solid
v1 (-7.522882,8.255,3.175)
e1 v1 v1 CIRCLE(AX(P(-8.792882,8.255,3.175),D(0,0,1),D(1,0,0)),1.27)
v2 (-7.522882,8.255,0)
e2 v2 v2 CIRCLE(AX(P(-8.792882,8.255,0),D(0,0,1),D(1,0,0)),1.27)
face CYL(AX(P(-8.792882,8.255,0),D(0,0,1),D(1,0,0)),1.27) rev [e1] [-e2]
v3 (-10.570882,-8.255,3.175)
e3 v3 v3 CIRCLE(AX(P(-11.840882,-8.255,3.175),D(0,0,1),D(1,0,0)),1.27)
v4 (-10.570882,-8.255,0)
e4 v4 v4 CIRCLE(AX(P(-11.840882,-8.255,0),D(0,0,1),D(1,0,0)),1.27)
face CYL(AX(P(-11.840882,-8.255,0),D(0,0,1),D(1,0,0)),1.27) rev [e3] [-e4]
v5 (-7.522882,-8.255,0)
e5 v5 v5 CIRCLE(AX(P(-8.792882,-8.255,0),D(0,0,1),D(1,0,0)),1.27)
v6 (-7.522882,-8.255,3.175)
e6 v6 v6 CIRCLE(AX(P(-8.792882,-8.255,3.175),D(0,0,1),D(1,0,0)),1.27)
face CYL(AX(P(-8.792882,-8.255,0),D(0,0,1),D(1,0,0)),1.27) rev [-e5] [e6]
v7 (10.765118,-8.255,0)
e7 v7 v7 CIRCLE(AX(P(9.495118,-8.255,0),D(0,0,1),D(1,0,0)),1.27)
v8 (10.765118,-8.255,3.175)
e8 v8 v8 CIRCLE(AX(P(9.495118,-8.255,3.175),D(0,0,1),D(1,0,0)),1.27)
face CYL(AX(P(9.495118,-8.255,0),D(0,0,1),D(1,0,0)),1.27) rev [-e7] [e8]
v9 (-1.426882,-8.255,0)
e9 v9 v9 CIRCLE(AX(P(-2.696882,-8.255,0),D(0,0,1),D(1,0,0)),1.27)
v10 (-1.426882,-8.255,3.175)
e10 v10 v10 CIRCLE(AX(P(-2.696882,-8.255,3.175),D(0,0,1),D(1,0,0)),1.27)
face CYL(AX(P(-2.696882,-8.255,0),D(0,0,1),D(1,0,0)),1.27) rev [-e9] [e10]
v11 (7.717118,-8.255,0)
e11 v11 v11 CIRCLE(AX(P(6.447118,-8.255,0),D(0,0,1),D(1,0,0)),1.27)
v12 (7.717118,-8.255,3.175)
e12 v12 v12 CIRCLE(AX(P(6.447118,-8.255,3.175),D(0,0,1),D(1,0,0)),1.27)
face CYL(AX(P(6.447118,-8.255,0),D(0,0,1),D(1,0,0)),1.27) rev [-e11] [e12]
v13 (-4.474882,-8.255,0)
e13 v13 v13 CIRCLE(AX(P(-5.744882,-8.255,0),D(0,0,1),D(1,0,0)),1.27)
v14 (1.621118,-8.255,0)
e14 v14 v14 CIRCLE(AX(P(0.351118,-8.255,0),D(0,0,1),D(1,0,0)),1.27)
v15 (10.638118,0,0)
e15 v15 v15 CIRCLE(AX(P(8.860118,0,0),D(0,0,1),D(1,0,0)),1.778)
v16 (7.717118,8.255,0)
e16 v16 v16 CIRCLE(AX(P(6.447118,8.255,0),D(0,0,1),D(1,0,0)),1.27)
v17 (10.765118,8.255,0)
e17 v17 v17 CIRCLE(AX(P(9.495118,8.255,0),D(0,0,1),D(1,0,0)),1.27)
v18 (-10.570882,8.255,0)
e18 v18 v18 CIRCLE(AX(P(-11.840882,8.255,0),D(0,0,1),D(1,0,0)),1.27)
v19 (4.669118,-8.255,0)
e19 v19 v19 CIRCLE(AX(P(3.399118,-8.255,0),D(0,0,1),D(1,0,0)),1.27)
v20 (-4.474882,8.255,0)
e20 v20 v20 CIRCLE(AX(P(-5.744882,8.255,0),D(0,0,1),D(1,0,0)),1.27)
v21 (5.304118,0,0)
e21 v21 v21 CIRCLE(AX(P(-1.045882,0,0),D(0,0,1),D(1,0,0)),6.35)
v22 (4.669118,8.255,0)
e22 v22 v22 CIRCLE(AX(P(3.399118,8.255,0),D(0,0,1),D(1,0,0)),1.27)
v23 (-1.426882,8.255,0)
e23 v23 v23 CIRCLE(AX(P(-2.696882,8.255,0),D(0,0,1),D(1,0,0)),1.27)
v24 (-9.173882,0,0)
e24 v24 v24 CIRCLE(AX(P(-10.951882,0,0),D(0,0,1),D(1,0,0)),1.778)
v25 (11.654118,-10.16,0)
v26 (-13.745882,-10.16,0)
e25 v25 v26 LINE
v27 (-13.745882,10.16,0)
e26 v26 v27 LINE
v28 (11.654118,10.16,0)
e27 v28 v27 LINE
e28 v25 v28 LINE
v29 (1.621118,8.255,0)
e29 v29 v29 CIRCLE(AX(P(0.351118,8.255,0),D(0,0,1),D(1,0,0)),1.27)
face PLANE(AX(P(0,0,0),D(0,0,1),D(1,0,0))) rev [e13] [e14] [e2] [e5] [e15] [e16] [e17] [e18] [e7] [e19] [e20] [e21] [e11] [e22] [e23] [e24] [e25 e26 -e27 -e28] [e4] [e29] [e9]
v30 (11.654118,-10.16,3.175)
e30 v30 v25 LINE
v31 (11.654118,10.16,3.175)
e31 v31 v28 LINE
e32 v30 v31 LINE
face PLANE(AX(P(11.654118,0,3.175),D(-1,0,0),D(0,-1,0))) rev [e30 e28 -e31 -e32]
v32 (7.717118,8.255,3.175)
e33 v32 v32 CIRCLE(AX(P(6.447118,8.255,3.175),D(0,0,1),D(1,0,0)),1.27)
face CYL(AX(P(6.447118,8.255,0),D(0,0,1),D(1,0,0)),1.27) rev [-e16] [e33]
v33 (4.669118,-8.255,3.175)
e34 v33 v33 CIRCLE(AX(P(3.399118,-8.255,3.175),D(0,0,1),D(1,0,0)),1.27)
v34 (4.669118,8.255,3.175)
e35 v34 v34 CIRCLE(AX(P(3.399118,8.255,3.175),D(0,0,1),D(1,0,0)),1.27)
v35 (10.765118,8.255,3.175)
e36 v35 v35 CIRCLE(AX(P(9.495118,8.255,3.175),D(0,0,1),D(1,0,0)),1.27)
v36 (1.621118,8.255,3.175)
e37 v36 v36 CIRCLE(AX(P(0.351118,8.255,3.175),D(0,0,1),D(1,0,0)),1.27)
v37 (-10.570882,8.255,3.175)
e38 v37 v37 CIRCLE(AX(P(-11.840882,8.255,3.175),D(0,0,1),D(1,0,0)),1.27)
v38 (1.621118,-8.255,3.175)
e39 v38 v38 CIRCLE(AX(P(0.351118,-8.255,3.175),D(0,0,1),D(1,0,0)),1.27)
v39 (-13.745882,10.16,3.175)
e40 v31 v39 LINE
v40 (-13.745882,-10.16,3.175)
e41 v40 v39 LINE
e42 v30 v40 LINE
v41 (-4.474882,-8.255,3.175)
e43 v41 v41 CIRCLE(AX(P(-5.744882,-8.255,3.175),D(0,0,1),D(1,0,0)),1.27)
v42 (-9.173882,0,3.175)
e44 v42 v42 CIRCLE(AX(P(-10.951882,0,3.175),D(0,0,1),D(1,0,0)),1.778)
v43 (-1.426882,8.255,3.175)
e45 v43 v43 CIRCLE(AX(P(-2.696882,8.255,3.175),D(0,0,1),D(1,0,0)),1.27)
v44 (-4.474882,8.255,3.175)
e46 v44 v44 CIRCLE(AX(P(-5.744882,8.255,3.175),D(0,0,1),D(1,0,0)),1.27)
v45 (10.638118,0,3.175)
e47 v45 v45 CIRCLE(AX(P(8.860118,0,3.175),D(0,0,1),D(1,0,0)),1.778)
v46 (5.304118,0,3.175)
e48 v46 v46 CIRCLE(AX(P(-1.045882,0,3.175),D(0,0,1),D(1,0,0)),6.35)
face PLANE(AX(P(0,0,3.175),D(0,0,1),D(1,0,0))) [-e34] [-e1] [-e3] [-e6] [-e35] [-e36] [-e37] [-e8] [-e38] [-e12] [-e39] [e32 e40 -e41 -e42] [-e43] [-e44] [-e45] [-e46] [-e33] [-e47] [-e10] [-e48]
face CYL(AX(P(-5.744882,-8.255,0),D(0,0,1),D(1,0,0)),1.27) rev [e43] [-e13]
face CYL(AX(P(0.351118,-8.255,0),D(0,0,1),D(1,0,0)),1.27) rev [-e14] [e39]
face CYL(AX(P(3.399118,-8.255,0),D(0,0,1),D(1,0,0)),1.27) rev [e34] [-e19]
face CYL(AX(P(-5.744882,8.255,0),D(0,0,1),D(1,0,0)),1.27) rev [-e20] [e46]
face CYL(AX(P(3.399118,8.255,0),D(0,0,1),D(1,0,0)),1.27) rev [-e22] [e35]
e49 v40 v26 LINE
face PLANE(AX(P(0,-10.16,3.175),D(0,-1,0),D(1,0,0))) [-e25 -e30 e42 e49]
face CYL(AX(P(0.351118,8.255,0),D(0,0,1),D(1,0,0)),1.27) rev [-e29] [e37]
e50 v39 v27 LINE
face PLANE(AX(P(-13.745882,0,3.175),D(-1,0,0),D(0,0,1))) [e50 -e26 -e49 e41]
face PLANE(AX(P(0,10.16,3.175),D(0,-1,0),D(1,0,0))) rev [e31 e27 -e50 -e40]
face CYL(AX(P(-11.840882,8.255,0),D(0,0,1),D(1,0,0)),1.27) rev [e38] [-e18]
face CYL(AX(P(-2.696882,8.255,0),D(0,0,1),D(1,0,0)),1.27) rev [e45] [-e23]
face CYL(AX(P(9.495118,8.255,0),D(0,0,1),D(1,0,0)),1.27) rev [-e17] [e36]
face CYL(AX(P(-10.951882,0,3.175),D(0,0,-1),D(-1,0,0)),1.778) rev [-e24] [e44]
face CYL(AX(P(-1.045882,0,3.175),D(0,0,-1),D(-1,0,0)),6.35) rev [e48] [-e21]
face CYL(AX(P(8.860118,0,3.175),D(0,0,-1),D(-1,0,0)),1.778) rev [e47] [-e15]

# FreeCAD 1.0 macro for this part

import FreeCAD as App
import Part
import Sketcher

V = App.Vector
Q = App.Units.Quantity

doc = App.newDocument("Part")
params = doc.addObject("Spreadsheet::Sheet", "Params")
for row, (alias, value) in enumerate([
    ("sketch1_diameter", "0.5 in"),
    ("sketch1_diameter2", "0.14 in"),
    ("sketch1_width", "1 in"),
    ("sketch1_height", "0.8 in"),
    ("pad1_length", "0.125 in"),
    ("sketch2_diameter", "0.1 in"),
    ("pocket1_length", "0.125 in"),
], start=1):
    params.set(f"A{row}", alias)
    params.set(f"B{row}", "=" + value)
    params.setAlias(f"B{row}", alias)

body = doc.addObject("PartDesign::Body", "Body")

sketch1 = body.newObject("Sketcher::SketchObject", "Sketch")
sketch1.AttachmentSupport = (doc.getObject("XY_Plane"), [""])
sketch1.MapMode = "FlatFace"
sketch1.addGeometry(Part.LineSegment(V(-13.7, 10.2, 0), V(-13.7, -10.2, 0)), False)
sketch1.addGeometry(Part.LineSegment(V(-13.7, -10.2, 0), V(11.7, -10.2, 0)), False)
sketch1.addGeometry(Part.LineSegment(V(11.7, -10.2, 0), V(11.7, 10.2, 0)), False)
sketch1.addGeometry(Part.LineSegment(V(11.7, 10.2, 0), V(-13.7, 10.2, 0)), False)
sketch1.addGeometry(Part.Circle(V(-11, 0, 0), V(0, 0, 1), 1.8), False)
sketch1.addGeometry(Part.Circle(V(-1, 0, 0), V(0, 0, 1), 6.3), False)
sketch1.addGeometry(Part.Circle(V(8.9, 0, 0), V(0, 0, 1), 1.8), False)
sketch1.addConstraint(Sketcher.Constraint("Coincident", 0, 2, 1, 1))
sketch1.addConstraint(Sketcher.Constraint("Coincident", 1, 2, 2, 1))
sketch1.addConstraint(Sketcher.Constraint("Coincident", 2, 2, 3, 1))
sketch1.addConstraint(Sketcher.Constraint("Coincident", 3, 2, 0, 1))
sketch1.addConstraint(Sketcher.Constraint("Vertical", 0))
sketch1.addConstraint(Sketcher.Constraint("Horizontal", 1))
sketch1.addConstraint(Sketcher.Constraint("Vertical", 2))
sketch1.addConstraint(Sketcher.Constraint("Horizontal", 3))
sketch1.addConstraint(Sketcher.Constraint("Equal", 4, 6))
sketch1.addConstraint(Sketcher.Constraint("PointOnObject", 4, 3, -1))
sketch1.addConstraint(Sketcher.Constraint("PointOnObject", 5, 3, -1))
sketch1.addConstraint(Sketcher.Constraint("PointOnObject", 6, 3, -1))
sketch1.addConstraint(Sketcher.Constraint("Diameter", 5, Q("0.5 in")))
sketch1.addConstraint(Sketcher.Constraint("Diameter", 4, Q("0.14 in")))
sketch1.addConstraint(Sketcher.Constraint("DistanceX", 1, 1, 1, 2, Q("1 in")))
sketch1.addConstraint(Sketcher.Constraint("DistanceY", 0, 2, 0, 1, Q("0.8 in")))
sketch1.addConstraint(Sketcher.Constraint("DistanceY", 0, 2, -1, 1, Q("0.4 in")))
sketch1.addConstraint(Sketcher.Constraint("DistanceX", 0, 2, 5, 3, Q("0.5 in")))
sketch1.addConstraint(Sketcher.Constraint("DistanceX", 4, 3, 5, 3, Q("0.39 in")))
sketch1.addConstraint(Sketcher.Constraint("DistanceX", 5, 3, 6, 3, Q("0.39 in")))
sketch1.addConstraint(Sketcher.Constraint("DistanceX", 4, 3, -1, 1, Q("10.951882 mm")))
sketch1.setExpression("Constraints[12]", "Params.sketch1_diameter")
sketch1.setExpression("Constraints[13]", "Params.sketch1_diameter2")
sketch1.setExpression("Constraints[14]", "Params.sketch1_width")
sketch1.setExpression("Constraints[15]", "Params.sketch1_height")
pad1 = body.newObject("PartDesign::Pad", "Pad")
pad1.Profile = sketch1
pad1.setExpression("Length", "Params.pad1_length")

sketch2 = body.newObject("Sketcher::SketchObject", "Sketch001")
sketch2.AttachmentSupport = (doc.getObject("XY_Plane"), [""])
sketch2.MapMode = "FlatFace"
sketch2.AttachmentOffset = App.Placement(V(0, 0, 0.125 * 25.4), App.Rotation())
sketch2.addGeometry(Part.Circle(V(-11.8, 8.3, 0), V(0, 0, 1), 1.3), False)
sketch2.addGeometry(Part.Circle(V(-8.8, 8.3, 0), V(0, 0, 1), 1.3), False)
sketch2.addGeometry(Part.Circle(V(-5.7, 8.3, 0), V(0, 0, 1), 1.3), False)
sketch2.addGeometry(Part.Circle(V(-2.7, 8.3, 0), V(0, 0, 1), 1.3), False)
sketch2.addGeometry(Part.Circle(V(0.4, 8.3, 0), V(0, 0, 1), 1.3), False)
sketch2.addGeometry(Part.Circle(V(3.4, 8.3, 0), V(0, 0, 1), 1.3), False)
sketch2.addGeometry(Part.Circle(V(6.4, 8.3, 0), V(0, 0, 1), 1.3), False)
sketch2.addGeometry(Part.Circle(V(9.5, 8.3, 0), V(0, 0, 1), 1.3), False)
sketch2.addGeometry(Part.Circle(V(-11.8, -8.3, 0), V(0, 0, 1), 1.3), False)
sketch2.addGeometry(Part.Circle(V(-8.8, -8.3, 0), V(0, 0, 1), 1.3), False)
sketch2.addGeometry(Part.Circle(V(-5.7, -8.3, 0), V(0, 0, 1), 1.3), False)
sketch2.addGeometry(Part.Circle(V(-2.7, -8.3, 0), V(0, 0, 1), 1.3), False)
sketch2.addGeometry(Part.Circle(V(0.4, -8.3, 0), V(0, 0, 1), 1.3), False)
sketch2.addGeometry(Part.Circle(V(3.4, -8.3, 0), V(0, 0, 1), 1.3), False)
sketch2.addGeometry(Part.Circle(V(6.4, -8.3, 0), V(0, 0, 1), 1.3), False)
sketch2.addGeometry(Part.Circle(V(9.5, -8.3, 0), V(0, 0, 1), 1.3), False)
sketch2.addConstraint(Sketcher.Constraint("Equal", 0, 1))
sketch2.addConstraint(Sketcher.Constraint("Equal", 1, 2))
sketch2.addConstraint(Sketcher.Constraint("Equal", 2, 3))
sketch2.addConstraint(Sketcher.Constraint("Equal", 3, 4))
sketch2.addConstraint(Sketcher.Constraint("Equal", 4, 5))
sketch2.addConstraint(Sketcher.Constraint("Equal", 5, 6))
sketch2.addConstraint(Sketcher.Constraint("Equal", 6, 7))
sketch2.addConstraint(Sketcher.Constraint("Equal", 7, 8))
sketch2.addConstraint(Sketcher.Constraint("Equal", 8, 9))
sketch2.addConstraint(Sketcher.Constraint("Equal", 9, 10))
sketch2.addConstraint(Sketcher.Constraint("Equal", 10, 11))
sketch2.addConstraint(Sketcher.Constraint("Equal", 11, 12))
sketch2.addConstraint(Sketcher.Constraint("Equal", 12, 13))
sketch2.addConstraint(Sketcher.Constraint("Equal", 13, 14))
sketch2.addConstraint(Sketcher.Constraint("Equal", 14, 15))
sketch2.addConstraint(Sketcher.Constraint("Symmetric", 0, 3, 8, 3, -1))
sketch2.addConstraint(Sketcher.Constraint("Symmetric", 1, 3, 9, 3, -1))
sketch2.addConstraint(Sketcher.Constraint("Symmetric", 2, 3, 10, 3, -1))
sketch2.addConstraint(Sketcher.Constraint("Symmetric", 3, 3, 11, 3, -1))
sketch2.addConstraint(Sketcher.Constraint("Symmetric", 4, 3, 12, 3, -1))
sketch2.addConstraint(Sketcher.Constraint("Symmetric", 5, 3, 13, 3, -1))
sketch2.addConstraint(Sketcher.Constraint("Symmetric", 6, 3, 14, 3, -1))
sketch2.addConstraint(Sketcher.Constraint("Symmetric", 7, 3, 15, 3, -1))
sketch2.addConstraint(Sketcher.Constraint("Horizontal", 0, 3, 1, 3))
sketch2.addConstraint(Sketcher.Constraint("Horizontal", 1, 3, 2, 3))
sketch2.addConstraint(Sketcher.Constraint("Horizontal", 2, 3, 3, 3))
sketch2.addConstraint(Sketcher.Constraint("Horizontal", 3, 3, 4, 3))
sketch2.addConstraint(Sketcher.Constraint("Horizontal", 4, 3, 5, 3))
sketch2.addConstraint(Sketcher.Constraint("Horizontal", 5, 3, 6, 3))
sketch2.addConstraint(Sketcher.Constraint("Horizontal", 6, 3, 7, 3))
sketch2.addConstraint(Sketcher.Constraint("Diameter", 0, Q("0.1 in")))
sketch2.addConstraint(Sketcher.Constraint("DistanceX", 0, 3, 5, 3, Q("0.6 in")))
sketch2.addConstraint(Sketcher.Constraint("DistanceX", 1, 3, 6, 3, Q("0.6 in")))
sketch2.addConstraint(Sketcher.Constraint("DistanceX", 2, 3, 7, 3, Q("0.6 in")))
sketch2.addConstraint(Sketcher.Constraint("DistanceX", 0, 3, 1, 3, Q("0.12 in")))
sketch2.addConstraint(Sketcher.Constraint("DistanceX", 1, 3, 2, 3, Q("0.12 in")))
sketch2.addConstraint(Sketcher.Constraint("DistanceX", 2, 3, 3, 3, Q("0.12 in")))
sketch2.addConstraint(Sketcher.Constraint("DistanceX", 3, 3, 4, 3, Q("0.12 in")))
sketch2.addConstraint(Sketcher.Constraint("DistanceY", 8, 3, 0, 3, Q("0.65 in")))
sketch2.addConstraint(Sketcher.Constraint("DistanceX", 0, 3, -1, 1, Q("11.840882 mm")))
sketch2.setExpression("Constraints[30]", "Params.sketch2_diameter")
pocket1 = body.newObject("PartDesign::Pocket", "Pocket")
pocket1.Profile = sketch2
pocket1.setExpression("Length", "Params.pocket1_length")

doc.recompute()
